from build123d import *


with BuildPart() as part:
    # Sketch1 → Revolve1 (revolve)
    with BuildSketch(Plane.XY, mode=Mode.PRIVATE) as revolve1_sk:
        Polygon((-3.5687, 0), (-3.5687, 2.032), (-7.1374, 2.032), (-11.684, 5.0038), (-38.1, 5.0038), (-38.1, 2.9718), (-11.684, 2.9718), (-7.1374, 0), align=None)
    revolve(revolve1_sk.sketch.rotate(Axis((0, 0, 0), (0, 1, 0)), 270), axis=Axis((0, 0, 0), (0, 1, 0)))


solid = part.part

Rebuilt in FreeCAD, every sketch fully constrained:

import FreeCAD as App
import Part
import Sketcher
from FreeCAD import Vector
Q = App.Units.Quantity

doc = App.newDocument("Part")
body = doc.addObject("PartDesign::Body", "Body")

# Sketch on XY plane
sketch1 = doc.addObject("Sketcher::SketchObject", "Sketch")
body.addObject(sketch1)
sketch1.AttachmentSupport = (doc.XY_Plane, [""])
sketch1.MapMode = "FlatFace"
sketch1.addGeometry([
    Part.LineSegment(Vector(-3.6, 0, 0), Vector(-3.6, 2, 0)),  # 0
    Part.LineSegment(Vector(-3.6, 2, 0), Vector(-7.1, 2, 0)),  # 1
    Part.LineSegment(Vector(-7.1, 2, 0), Vector(-11.7, 5, 0)),  # 2
    Part.LineSegment(Vector(-11.7, 5, 0), Vector(-38.1, 5, 0)),  # 3
    Part.LineSegment(Vector(-38.1, 5, 0), Vector(-38.1, 3, 0)),  # 4
    Part.LineSegment(Vector(-38.1, 3, 0), Vector(-11.7, 3, 0)),  # 5
    Part.LineSegment(Vector(-11.7, 3, 0), Vector(-7.1, 0, 0)),  # 6
    Part.LineSegment(Vector(-7.1, 0, 0), Vector(-3.6, 0, 0)),  # 7
], False)
sketch1.addConstraint([
    Sketcher.Constraint("Coincident", 0, 2, 1, 1),
    Sketcher.Constraint("Coincident", 1, 2, 2, 1),
    Sketcher.Constraint("Coincident", 2, 2, 3, 1),
    Sketcher.Constraint("Coincident", 3, 2, 4, 1),
    Sketcher.Constraint("Coincident", 4, 2, 5, 1),
    Sketcher.Constraint("Coincident", 5, 2, 6, 1),
    Sketcher.Constraint("Coincident", 6, 2, 7, 1),
    Sketcher.Constraint("Coincident", 7, 2, 0, 1),
    Sketcher.Constraint("Vertical", 0),
    Sketcher.Constraint("Horizontal", 1),
    Sketcher.Constraint("Horizontal", 3),
    Sketcher.Constraint("Vertical", 4),
    Sketcher.Constraint("Horizontal", 5),
    Sketcher.Constraint("Horizontal", 7),
    Sketcher.Constraint("PointOnObject", 6, 2, -1),
    Sketcher.Constraint("Parallel", 2, 6),
    Sketcher.Constraint("Vertical", 2, 2, 5, 2),
    Sketcher.Constraint("Vertical", 1, 2, 6, 2),
    Sketcher.Constraint("DistanceX", 3, 2, 3, 1, Q("1.04 in")),
    Sketcher.Constraint("DistanceY", 0, 1, 0, 2, Q("0.08 in")),
    Sketcher.Constraint("DistanceX", 3, 2, -1, 1, Q("1.5 in")),
    Sketcher.Constraint("DistanceX", 1, 2, 1, 1, Q("0.1405 in")),
    Sketcher.Constraint("DistanceX", 1, 2, -1, 1, Q("0.281 in")),
    Sketcher.Constraint("DistanceY", -1, 1, 2, 2, Q("0.197 in")),
])
revolution = doc.addObject("PartDesign::Revolution", "Revolution")
body.addObject(revolution)
revolution.Profile = sketch1
revolution.ReferenceAxis = (sketch1, ["V_Axis"])
revolution.Angle = 360

doc.recompute()
